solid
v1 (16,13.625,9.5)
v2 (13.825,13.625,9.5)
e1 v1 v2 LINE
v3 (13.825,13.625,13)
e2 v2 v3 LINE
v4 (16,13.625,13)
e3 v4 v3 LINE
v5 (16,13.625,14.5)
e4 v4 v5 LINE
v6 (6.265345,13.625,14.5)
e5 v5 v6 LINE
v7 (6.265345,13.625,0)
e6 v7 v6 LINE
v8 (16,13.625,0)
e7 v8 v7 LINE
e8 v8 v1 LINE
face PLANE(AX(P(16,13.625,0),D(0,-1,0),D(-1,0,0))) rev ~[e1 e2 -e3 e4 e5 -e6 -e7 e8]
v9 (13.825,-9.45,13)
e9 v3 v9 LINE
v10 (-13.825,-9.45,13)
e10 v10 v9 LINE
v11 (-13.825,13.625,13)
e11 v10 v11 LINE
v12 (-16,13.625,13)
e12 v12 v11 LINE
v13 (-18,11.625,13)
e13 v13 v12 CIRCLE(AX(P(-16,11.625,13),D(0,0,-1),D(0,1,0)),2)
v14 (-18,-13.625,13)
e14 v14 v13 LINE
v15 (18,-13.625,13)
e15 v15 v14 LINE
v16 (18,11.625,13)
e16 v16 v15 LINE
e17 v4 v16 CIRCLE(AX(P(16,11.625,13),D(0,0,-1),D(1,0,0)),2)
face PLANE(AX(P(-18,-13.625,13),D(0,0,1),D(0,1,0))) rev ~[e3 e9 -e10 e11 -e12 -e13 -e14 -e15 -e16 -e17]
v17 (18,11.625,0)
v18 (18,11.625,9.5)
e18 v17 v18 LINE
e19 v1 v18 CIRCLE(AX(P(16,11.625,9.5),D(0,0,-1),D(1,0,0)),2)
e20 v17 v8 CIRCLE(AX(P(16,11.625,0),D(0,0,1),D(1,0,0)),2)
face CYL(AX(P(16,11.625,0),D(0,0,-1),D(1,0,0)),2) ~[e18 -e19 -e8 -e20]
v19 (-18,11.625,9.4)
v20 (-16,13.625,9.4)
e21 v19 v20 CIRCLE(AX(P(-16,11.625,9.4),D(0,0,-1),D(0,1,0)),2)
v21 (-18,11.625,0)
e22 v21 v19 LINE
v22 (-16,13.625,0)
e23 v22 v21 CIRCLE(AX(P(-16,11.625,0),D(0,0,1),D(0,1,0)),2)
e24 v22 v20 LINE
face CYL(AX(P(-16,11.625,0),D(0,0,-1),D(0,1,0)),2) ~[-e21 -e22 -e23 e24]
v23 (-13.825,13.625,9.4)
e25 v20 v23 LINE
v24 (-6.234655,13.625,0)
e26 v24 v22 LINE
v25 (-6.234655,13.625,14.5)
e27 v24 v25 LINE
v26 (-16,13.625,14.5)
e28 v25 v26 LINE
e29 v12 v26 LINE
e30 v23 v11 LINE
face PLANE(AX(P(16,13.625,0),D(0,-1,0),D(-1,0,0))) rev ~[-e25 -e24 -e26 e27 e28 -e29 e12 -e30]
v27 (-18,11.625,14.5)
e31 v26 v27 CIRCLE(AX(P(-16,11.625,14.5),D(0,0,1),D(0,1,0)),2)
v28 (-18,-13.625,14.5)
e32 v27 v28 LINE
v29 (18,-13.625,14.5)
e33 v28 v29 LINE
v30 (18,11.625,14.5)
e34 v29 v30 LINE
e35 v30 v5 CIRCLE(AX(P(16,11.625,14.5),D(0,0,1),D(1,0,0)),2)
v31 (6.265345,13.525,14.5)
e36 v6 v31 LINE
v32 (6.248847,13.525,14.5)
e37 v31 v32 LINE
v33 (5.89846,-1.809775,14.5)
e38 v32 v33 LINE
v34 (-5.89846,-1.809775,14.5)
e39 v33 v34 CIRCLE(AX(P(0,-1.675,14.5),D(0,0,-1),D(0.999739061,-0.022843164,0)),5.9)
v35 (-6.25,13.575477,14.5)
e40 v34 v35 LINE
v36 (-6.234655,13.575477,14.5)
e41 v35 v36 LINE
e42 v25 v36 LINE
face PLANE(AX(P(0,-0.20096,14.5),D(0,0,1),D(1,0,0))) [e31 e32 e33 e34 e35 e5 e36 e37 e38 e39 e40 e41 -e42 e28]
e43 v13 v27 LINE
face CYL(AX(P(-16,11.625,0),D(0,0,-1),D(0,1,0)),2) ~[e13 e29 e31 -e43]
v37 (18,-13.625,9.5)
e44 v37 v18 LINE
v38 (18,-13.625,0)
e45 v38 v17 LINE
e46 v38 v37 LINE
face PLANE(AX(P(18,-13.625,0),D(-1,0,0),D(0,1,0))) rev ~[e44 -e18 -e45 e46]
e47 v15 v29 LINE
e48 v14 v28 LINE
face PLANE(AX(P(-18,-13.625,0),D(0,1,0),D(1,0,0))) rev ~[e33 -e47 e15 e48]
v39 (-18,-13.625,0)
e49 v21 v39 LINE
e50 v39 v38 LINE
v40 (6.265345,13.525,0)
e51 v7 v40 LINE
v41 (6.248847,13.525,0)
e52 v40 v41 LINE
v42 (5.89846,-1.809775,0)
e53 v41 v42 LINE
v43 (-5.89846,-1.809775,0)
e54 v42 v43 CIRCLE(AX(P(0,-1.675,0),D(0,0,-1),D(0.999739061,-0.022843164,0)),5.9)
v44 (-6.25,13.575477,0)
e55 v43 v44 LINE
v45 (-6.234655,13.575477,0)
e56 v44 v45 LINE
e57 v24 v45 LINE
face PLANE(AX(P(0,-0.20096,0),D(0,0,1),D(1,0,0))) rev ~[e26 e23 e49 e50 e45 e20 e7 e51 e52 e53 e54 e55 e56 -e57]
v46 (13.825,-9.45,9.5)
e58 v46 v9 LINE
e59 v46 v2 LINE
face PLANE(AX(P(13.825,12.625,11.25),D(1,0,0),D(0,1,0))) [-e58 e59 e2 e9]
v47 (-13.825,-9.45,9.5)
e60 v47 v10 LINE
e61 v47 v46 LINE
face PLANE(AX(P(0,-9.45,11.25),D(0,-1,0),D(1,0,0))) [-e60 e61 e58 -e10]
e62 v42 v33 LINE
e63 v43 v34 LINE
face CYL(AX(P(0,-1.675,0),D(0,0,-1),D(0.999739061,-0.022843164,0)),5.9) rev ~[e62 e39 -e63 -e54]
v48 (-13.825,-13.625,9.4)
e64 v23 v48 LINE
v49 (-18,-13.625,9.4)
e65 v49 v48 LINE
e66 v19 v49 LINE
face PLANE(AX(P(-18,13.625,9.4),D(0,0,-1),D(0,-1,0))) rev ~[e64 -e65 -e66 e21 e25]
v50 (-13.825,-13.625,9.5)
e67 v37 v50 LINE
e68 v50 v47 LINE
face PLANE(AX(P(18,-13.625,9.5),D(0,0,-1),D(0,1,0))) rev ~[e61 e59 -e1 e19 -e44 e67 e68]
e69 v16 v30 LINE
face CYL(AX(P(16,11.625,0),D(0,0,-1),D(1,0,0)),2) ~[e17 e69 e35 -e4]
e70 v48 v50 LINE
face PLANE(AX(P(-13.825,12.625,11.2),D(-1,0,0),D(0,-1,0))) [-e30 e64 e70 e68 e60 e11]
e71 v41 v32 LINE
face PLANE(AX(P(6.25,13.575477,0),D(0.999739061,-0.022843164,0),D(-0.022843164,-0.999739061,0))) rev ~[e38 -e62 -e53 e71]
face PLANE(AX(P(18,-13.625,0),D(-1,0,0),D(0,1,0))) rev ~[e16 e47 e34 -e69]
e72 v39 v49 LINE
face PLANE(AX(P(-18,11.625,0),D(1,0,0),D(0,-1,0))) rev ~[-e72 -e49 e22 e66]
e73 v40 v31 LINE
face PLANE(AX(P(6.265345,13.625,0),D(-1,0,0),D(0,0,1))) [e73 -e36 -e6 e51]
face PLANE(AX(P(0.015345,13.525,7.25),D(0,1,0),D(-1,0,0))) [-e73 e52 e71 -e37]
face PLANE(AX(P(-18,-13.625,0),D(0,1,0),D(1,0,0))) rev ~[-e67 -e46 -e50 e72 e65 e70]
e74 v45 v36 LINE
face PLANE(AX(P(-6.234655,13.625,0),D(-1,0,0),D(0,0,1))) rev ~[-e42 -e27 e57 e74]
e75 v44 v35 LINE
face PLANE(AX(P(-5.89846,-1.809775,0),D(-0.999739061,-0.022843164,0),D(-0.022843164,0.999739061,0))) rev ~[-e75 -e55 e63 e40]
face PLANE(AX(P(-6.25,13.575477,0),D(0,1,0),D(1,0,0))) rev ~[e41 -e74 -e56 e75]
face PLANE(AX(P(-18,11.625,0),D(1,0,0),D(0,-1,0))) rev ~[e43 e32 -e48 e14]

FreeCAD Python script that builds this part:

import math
import FreeCAD as App
import Part
import Sketcher

doc = App.newDocument("Part")
params = doc.addObject("Spreadsheet::Sheet", "Params")
for row, (alias, value) in enumerate([
    ("sketch1_radius", "2 mm"),
    ("sketch1_radius2", "5.9 mm"),
    ("sketch1_width", "36 mm"),
    ("sketch1_width2", "12.5 mm"),
    ("sketch1_height", "25.25 mm"),
    ("pad1_length", "14.5 mm"),
    ("sketch2_width", "12.5 mm"),
    ("sketch2_height", "14.5 mm"),
    ("pocket1_length", "0.1 mm"),
    ("sketch3_height", "3.5 mm"),
    ("sketch3_width", "27.25 mm"),
    ("pocket2_length", "4.175 mm"),
    ("sketch4_height", "3.6 mm"),
    ("sketch4_width", "27.25 mm"),
    ("pocket3_length", "4.175 mm"),
    ("sketch5_height", "3.5 mm"),
    ("sketch5_width", "27.65 mm"),
    ("pocket4_length", "4.175 mm"),
], start=1):
    params.set(f"A{row}", alias)
    params.set(f"B{row}", "=" + value)
    params.setAlias(f"B{row}", alias)

body = doc.addObject("PartDesign::Body", "Body")

# Sketch on XY plane
sketch1 = doc.addObject("Sketcher::SketchObject", "Sketch")
body.addObject(sketch1)
sketch1.AttachmentSupport = (doc.XY_Plane, [""])
sketch1.MapMode = "FlatFace"
sketch1.addGeometry([
    Part.LineSegment(App.Vector(-18, 11.625, 0), App.Vector(-18, -13.625, 0)),  # 0
    Part.LineSegment(App.Vector(-18, -13.625, 0), App.Vector(18, -13.625, 0)),  # 1
    Part.LineSegment(App.Vector(18, -13.625, 0), App.Vector(18, 11.625, 0)),  # 2
    Part.ArcOfCircle(Part.Circle(App.Vector(16, 11.625, 0), App.Vector(0, 0, 1), 2), math.radians(0), math.radians(90)),  # 3
    Part.LineSegment(App.Vector(16, 13.625, 0), App.Vector(-16, 13.625, 0)),  # 4
    Part.ArcOfCircle(Part.Circle(App.Vector(-16, 11.625, 0), App.Vector(0, 0, 1), 2), math.radians(90), math.radians(180)),  # 5
    Part.LineSegment(App.Vector(6.25, 13.575477, 0), App.Vector(5.89846, -1.809775, 0)),  # 6
    Part.ArcOfCircle(Part.Circle(App.Vector(0, -1.675, 0), App.Vector(0, 0, 1), 5.9), math.radians(-178.691069), math.radians(-1.308931)),  # 7
    Part.LineSegment(App.Vector(-5.89846, -1.809775, 0), App.Vector(-6.25, 13.575477, 0)),  # 8
    Part.LineSegment(App.Vector(-6.25, 13.575477, 0), App.Vector(6.25, 13.575477, 0)),  # 9
], False)
sketch1.addConstraint([
    Sketcher.Constraint("Coincident", 0, 2, 1, 1),
    Sketcher.Constraint("Coincident", 1, 2, 2, 1),
    Sketcher.Constraint("Tangent", 2, 2, 3, 1),
    Sketcher.Constraint("Tangent", 3, 2, 4, 1),
    Sketcher.Constraint("Tangent", 4, 2, 5, 1),
    Sketcher.Constraint("Tangent", 5, 2, 0, 1),
    Sketcher.Constraint("Tangent", 6, 2, 7, 2),
    Sketcher.Constraint("Tangent", 7, 1, 8, 1),
    Sketcher.Constraint("Coincident", 8, 2, 9, 1),
    Sketcher.Constraint("Coincident", 9, 2, 6, 1),
    Sketcher.Constraint("Vertical", 0),
    Sketcher.Constraint("Horizontal", 1),
    Sketcher.Constraint("Vertical", 2),
    Sketcher.Constraint("Horizontal", 4),
    Sketcher.Constraint("Horizontal", 9),
    Sketcher.Constraint("Equal", 3, 5),
    Sketcher.Constraint("Symmetric", 6, 2, 7, 1, -2),
    Sketcher.Constraint("Radius", 3, 2.0),
    Sketcher.Constraint("Radius", 7, 5.9),
    Sketcher.Constraint("DistanceX", 1, 1, 1, 2, 36.0),
    Sketcher.Constraint("DistanceX", 9, 1, 9, 2, 12.5),
    Sketcher.Constraint("DistanceX", -1, 1, 3, 3, 16.0),
    Sketcher.Constraint("DistanceY", 0, 2, 0, 1, 25.25),
    Sketcher.Constraint("DistanceY", 7, 3, 3, 3, 13.3),
    Sketcher.Constraint("DistanceY", -1, 1, 3, 3, 11.625),
    Sketcher.Constraint("DistanceY", 7, 1, 8, 2, 15.385251),
])
sketch1.setExpression("Constraints[17]", "Params.sketch1_radius")
sketch1.setExpression("Constraints[18]", "Params.sketch1_radius2")
sketch1.setExpression("Constraints[19]", "Params.sketch1_width")
sketch1.setExpression("Constraints[20]", "Params.sketch1_width2")
sketch1.setExpression("Constraints[22]", "Params.sketch1_height")
pad1 = doc.addObject("PartDesign::Pad", "Pad")
body.addObject(pad1)
pad1.Profile = sketch1
pad1.setExpression("Length", "Params.pad1_length")

# Sketch on XZ plane
sketch2 = doc.addObject("Sketcher::SketchObject", "Sketch001")
body.addObject(sketch2)
sketch2.AttachmentSupport = (doc.XZ_Plane, [""])
sketch2.MapMode = "FlatFace"
sketch2.AttachmentOffset = App.Placement(App.Vector(0, 0, -13.625), App.Rotation())
sketch2.addGeometry([
    Part.LineSegment(App.Vector(6.265345, 14.5, 0), App.Vector(6.265345, 0, 0)),
    Part.LineSegment(App.Vector(6.265345, 0, 0), App.Vector(-6.234655, 0, 0)),
    Part.LineSegment(App.Vector(-6.234655, 0, 0), App.Vector(-6.234655, 14.5, 0)),
    Part.LineSegment(App.Vector(-6.234655, 14.5, 0), App.Vector(6.265345, 14.5, 0)),
], False)
sketch2.addConstraint([
    Sketcher.Constraint("Coincident", 0, 2, 1, 1),
    Sketcher.Constraint("Coincident", 1, 2, 2, 1),
    Sketcher.Constraint("Coincident", 2, 2, 3, 1),
    Sketcher.Constraint("Coincident", 3, 2, 0, 1),
    Sketcher.Constraint("Vertical", 0),
    Sketcher.Constraint("Horizontal", 1),
    Sketcher.Constraint("Vertical", 2),
    Sketcher.Constraint("Horizontal", 3),
    Sketcher.Constraint("PointOnObject", 0, 2, -1),
    Sketcher.Constraint("DistanceX", 1, 2, 1, 1, 12.5),
    Sketcher.Constraint("DistanceY", 0, 2, 0, 1, 14.5),
    Sketcher.Constraint("DistanceX", -1, 1, 0, 2, 6.265345),
])
sketch2.setExpression("Constraints[9]", "Params.sketch2_width")
sketch2.setExpression("Constraints[10]", "Params.sketch2_height")
pocket1 = doc.addObject("PartDesign::Pocket", "Pocket")
body.addObject(pocket1)
pocket1.Profile = sketch2
pocket1.setExpression("Length", "Params.pocket1_length")
pocket1.Reversed = True

# Sketch on YZ plane
sketch3 = doc.addObject("Sketcher::SketchObject", "Sketch002")
body.addObject(sketch3)
sketch3.AttachmentSupport = (doc.YZ_Plane, [""])
sketch3.MapMode = "FlatFace"
sketch3.AttachmentOffset = App.Placement(App.Vector(0, 0, 18), App.Rotation())
sketch3.addGeometry([
    Part.LineSegment(App.Vector(13.625, 9.5, 0), App.Vector(13.625, 13, 0)),
    Part.LineSegment(App.Vector(13.625, 13, 0), App.Vector(-13.625, 13, 0)),
    Part.LineSegment(App.Vector(-13.625, 13, 0), App.Vector(-13.625, 9.5, 0)),
    Part.LineSegment(App.Vector(-13.625, 9.5, 0), App.Vector(13.625, 9.5, 0)),
], False)
sketch3.addConstraint([
    Sketcher.Constraint("Coincident", 0, 2, 1, 1),
    Sketcher.Constraint("Coincident", 1, 2, 2, 1),
    Sketcher.Constraint("Coincident", 2, 2, 3, 1),
    Sketcher.Constraint("Coincident", 3, 2, 0, 1),
    Sketcher.Constraint("Vertical", 0),
    Sketcher.Constraint("Horizontal", 1),
    Sketcher.Constraint("Vertical", 2),
    Sketcher.Constraint("Horizontal", 3),
    Sketcher.Constraint("DistanceY", 0, 1, 0, 2, 3.5),
    Sketcher.Constraint("DistanceY", -1, 1, 0, 2, 13.0),
    Sketcher.Constraint("DistanceX", 1, 2, 1, 1, 27.25),
    Sketcher.Constraint("DistanceX", -1, 1, 0, 2, 13.625),
])
sketch3.setExpression("Constraints[8]", "Params.sketch3_height")
sketch3.setExpression("Constraints[10]", "Params.sketch3_width")
pocket2 = doc.addObject("PartDesign::Pocket", "Pocket001")
body.addObject(pocket2)
pocket2.Profile = sketch3
pocket2.setExpression("Length", "Params.pocket2_length")

# Sketch on YZ plane
sketch4 = doc.addObject("Sketcher::SketchObject", "Sketch003")
body.addObject(sketch4)
sketch4.AttachmentSupport = (doc.YZ_Plane, [""])
sketch4.MapMode = "FlatFace"
sketch4.AttachmentOffset = App.Placement(App.Vector(0, 0, -18), App.Rotation())
sketch4.addGeometry([
    Part.LineSegment(App.Vector(13.625, 13, 0), App.Vector(13.625, 9.4, 0)),
    Part.LineSegment(App.Vector(13.625, 9.4, 0), App.Vector(-13.625, 9.4, 0)),
    Part.LineSegment(App.Vector(-13.625, 9.4, 0), App.Vector(-13.625, 13, 0)),
    Part.LineSegment(App.Vector(-13.625, 13, 0), App.Vector(13.625, 13, 0)),
], False)
sketch4.addConstraint([
    Sketcher.Constraint("Coincident", 0, 2, 1, 1),
    Sketcher.Constraint("Coincident", 1, 2, 2, 1),
    Sketcher.Constraint("Coincident", 2, 2, 3, 1),
    Sketcher.Constraint("Coincident", 3, 2, 0, 1),
    Sketcher.Constraint("Vertical", 0),
    Sketcher.Constraint("Horizontal", 1),
    Sketcher.Constraint("Vertical", 2),
    Sketcher.Constraint("Horizontal", 3),
    Sketcher.Constraint("DistanceY", 0, 2, 0, 1, 3.6),
    Sketcher.Constraint("DistanceY", -1, 1, 2, 2, 13.0),
    Sketcher.Constraint("DistanceX", 1, 2, 1, 1, 27.25),
    Sketcher.Constraint("DistanceX", -1, 1, 0, 2, 13.625),
])
sketch4.setExpression("Constraints[8]", "Params.sketch4_height")
sketch4.setExpression("Constraints[10]", "Params.sketch4_width")
pocket3 = doc.addObject("PartDesign::Pocket", "Pocket002")
body.addObject(pocket3)
pocket3.Profile = sketch4
pocket3.setExpression("Length", "Params.pocket3_length")
pocket3.Reversed = True

# Sketch on XZ plane
sketch5 = doc.addObject("Sketcher::SketchObject", "Sketch004")
body.addObject(sketch5)
sketch5.AttachmentSupport = (doc.XZ_Plane, [""])
sketch5.MapMode = "FlatFace"
sketch5.AttachmentOffset = App.Placement(App.Vector(0, 0, 13.625), App.Rotation())
sketch5.addGeometry([
    Part.LineSegment(App.Vector(-13.825, 13, 0), App.Vector(-13.825, 9.5, 0)),
    Part.LineSegment(App.Vector(-13.825, 9.5, 0), App.Vector(13.825, 9.5, 0)),
    Part.LineSegment(App.Vector(13.825, 9.5, 0), App.Vector(13.825, 13, 0)),
    Part.LineSegment(App.Vector(13.825, 13, 0), App.Vector(-13.825, 13, 0)),
], False)
sketch5.addConstraint([
    Sketcher.Constraint("Coincident", 0, 2, 1, 1),
    Sketcher.Constraint("Coincident", 1, 2, 2, 1),
    Sketcher.Constraint("Coincident", 2, 2, 3, 1),
    Sketcher.Constraint("Coincident", 3, 2, 0, 1),
    Sketcher.Constraint("Vertical", 0),
    Sketcher.Constraint("Horizontal", 1),
    Sketcher.Constraint("Vertical", 2),
    Sketcher.Constraint("Horizontal", 3),
    Sketcher.Constraint("DistanceY", 0, 2, 0, 1, 3.5),
    Sketcher.Constraint("DistanceY", -1, 1, 2, 2, 13.0),
    Sketcher.Constraint("DistanceX", 1, 1, 1, 2, 27.65),
    Sketcher.Constraint("DistanceX", 0, 2, -1, 1, 13.825),
])
sketch5.setExpression("Constraints[8]", "Params.sketch5_height")
sketch5.setExpression("Constraints[10]", "Params.sketch5_width")
pocket4 = doc.addObject("PartDesign::Pocket", "Pocket003")
body.addObject(pocket4)
pocket4.Profile = sketch5
pocket4.setExpression("Length", "Params.pocket4_length")

doc.recompute()
